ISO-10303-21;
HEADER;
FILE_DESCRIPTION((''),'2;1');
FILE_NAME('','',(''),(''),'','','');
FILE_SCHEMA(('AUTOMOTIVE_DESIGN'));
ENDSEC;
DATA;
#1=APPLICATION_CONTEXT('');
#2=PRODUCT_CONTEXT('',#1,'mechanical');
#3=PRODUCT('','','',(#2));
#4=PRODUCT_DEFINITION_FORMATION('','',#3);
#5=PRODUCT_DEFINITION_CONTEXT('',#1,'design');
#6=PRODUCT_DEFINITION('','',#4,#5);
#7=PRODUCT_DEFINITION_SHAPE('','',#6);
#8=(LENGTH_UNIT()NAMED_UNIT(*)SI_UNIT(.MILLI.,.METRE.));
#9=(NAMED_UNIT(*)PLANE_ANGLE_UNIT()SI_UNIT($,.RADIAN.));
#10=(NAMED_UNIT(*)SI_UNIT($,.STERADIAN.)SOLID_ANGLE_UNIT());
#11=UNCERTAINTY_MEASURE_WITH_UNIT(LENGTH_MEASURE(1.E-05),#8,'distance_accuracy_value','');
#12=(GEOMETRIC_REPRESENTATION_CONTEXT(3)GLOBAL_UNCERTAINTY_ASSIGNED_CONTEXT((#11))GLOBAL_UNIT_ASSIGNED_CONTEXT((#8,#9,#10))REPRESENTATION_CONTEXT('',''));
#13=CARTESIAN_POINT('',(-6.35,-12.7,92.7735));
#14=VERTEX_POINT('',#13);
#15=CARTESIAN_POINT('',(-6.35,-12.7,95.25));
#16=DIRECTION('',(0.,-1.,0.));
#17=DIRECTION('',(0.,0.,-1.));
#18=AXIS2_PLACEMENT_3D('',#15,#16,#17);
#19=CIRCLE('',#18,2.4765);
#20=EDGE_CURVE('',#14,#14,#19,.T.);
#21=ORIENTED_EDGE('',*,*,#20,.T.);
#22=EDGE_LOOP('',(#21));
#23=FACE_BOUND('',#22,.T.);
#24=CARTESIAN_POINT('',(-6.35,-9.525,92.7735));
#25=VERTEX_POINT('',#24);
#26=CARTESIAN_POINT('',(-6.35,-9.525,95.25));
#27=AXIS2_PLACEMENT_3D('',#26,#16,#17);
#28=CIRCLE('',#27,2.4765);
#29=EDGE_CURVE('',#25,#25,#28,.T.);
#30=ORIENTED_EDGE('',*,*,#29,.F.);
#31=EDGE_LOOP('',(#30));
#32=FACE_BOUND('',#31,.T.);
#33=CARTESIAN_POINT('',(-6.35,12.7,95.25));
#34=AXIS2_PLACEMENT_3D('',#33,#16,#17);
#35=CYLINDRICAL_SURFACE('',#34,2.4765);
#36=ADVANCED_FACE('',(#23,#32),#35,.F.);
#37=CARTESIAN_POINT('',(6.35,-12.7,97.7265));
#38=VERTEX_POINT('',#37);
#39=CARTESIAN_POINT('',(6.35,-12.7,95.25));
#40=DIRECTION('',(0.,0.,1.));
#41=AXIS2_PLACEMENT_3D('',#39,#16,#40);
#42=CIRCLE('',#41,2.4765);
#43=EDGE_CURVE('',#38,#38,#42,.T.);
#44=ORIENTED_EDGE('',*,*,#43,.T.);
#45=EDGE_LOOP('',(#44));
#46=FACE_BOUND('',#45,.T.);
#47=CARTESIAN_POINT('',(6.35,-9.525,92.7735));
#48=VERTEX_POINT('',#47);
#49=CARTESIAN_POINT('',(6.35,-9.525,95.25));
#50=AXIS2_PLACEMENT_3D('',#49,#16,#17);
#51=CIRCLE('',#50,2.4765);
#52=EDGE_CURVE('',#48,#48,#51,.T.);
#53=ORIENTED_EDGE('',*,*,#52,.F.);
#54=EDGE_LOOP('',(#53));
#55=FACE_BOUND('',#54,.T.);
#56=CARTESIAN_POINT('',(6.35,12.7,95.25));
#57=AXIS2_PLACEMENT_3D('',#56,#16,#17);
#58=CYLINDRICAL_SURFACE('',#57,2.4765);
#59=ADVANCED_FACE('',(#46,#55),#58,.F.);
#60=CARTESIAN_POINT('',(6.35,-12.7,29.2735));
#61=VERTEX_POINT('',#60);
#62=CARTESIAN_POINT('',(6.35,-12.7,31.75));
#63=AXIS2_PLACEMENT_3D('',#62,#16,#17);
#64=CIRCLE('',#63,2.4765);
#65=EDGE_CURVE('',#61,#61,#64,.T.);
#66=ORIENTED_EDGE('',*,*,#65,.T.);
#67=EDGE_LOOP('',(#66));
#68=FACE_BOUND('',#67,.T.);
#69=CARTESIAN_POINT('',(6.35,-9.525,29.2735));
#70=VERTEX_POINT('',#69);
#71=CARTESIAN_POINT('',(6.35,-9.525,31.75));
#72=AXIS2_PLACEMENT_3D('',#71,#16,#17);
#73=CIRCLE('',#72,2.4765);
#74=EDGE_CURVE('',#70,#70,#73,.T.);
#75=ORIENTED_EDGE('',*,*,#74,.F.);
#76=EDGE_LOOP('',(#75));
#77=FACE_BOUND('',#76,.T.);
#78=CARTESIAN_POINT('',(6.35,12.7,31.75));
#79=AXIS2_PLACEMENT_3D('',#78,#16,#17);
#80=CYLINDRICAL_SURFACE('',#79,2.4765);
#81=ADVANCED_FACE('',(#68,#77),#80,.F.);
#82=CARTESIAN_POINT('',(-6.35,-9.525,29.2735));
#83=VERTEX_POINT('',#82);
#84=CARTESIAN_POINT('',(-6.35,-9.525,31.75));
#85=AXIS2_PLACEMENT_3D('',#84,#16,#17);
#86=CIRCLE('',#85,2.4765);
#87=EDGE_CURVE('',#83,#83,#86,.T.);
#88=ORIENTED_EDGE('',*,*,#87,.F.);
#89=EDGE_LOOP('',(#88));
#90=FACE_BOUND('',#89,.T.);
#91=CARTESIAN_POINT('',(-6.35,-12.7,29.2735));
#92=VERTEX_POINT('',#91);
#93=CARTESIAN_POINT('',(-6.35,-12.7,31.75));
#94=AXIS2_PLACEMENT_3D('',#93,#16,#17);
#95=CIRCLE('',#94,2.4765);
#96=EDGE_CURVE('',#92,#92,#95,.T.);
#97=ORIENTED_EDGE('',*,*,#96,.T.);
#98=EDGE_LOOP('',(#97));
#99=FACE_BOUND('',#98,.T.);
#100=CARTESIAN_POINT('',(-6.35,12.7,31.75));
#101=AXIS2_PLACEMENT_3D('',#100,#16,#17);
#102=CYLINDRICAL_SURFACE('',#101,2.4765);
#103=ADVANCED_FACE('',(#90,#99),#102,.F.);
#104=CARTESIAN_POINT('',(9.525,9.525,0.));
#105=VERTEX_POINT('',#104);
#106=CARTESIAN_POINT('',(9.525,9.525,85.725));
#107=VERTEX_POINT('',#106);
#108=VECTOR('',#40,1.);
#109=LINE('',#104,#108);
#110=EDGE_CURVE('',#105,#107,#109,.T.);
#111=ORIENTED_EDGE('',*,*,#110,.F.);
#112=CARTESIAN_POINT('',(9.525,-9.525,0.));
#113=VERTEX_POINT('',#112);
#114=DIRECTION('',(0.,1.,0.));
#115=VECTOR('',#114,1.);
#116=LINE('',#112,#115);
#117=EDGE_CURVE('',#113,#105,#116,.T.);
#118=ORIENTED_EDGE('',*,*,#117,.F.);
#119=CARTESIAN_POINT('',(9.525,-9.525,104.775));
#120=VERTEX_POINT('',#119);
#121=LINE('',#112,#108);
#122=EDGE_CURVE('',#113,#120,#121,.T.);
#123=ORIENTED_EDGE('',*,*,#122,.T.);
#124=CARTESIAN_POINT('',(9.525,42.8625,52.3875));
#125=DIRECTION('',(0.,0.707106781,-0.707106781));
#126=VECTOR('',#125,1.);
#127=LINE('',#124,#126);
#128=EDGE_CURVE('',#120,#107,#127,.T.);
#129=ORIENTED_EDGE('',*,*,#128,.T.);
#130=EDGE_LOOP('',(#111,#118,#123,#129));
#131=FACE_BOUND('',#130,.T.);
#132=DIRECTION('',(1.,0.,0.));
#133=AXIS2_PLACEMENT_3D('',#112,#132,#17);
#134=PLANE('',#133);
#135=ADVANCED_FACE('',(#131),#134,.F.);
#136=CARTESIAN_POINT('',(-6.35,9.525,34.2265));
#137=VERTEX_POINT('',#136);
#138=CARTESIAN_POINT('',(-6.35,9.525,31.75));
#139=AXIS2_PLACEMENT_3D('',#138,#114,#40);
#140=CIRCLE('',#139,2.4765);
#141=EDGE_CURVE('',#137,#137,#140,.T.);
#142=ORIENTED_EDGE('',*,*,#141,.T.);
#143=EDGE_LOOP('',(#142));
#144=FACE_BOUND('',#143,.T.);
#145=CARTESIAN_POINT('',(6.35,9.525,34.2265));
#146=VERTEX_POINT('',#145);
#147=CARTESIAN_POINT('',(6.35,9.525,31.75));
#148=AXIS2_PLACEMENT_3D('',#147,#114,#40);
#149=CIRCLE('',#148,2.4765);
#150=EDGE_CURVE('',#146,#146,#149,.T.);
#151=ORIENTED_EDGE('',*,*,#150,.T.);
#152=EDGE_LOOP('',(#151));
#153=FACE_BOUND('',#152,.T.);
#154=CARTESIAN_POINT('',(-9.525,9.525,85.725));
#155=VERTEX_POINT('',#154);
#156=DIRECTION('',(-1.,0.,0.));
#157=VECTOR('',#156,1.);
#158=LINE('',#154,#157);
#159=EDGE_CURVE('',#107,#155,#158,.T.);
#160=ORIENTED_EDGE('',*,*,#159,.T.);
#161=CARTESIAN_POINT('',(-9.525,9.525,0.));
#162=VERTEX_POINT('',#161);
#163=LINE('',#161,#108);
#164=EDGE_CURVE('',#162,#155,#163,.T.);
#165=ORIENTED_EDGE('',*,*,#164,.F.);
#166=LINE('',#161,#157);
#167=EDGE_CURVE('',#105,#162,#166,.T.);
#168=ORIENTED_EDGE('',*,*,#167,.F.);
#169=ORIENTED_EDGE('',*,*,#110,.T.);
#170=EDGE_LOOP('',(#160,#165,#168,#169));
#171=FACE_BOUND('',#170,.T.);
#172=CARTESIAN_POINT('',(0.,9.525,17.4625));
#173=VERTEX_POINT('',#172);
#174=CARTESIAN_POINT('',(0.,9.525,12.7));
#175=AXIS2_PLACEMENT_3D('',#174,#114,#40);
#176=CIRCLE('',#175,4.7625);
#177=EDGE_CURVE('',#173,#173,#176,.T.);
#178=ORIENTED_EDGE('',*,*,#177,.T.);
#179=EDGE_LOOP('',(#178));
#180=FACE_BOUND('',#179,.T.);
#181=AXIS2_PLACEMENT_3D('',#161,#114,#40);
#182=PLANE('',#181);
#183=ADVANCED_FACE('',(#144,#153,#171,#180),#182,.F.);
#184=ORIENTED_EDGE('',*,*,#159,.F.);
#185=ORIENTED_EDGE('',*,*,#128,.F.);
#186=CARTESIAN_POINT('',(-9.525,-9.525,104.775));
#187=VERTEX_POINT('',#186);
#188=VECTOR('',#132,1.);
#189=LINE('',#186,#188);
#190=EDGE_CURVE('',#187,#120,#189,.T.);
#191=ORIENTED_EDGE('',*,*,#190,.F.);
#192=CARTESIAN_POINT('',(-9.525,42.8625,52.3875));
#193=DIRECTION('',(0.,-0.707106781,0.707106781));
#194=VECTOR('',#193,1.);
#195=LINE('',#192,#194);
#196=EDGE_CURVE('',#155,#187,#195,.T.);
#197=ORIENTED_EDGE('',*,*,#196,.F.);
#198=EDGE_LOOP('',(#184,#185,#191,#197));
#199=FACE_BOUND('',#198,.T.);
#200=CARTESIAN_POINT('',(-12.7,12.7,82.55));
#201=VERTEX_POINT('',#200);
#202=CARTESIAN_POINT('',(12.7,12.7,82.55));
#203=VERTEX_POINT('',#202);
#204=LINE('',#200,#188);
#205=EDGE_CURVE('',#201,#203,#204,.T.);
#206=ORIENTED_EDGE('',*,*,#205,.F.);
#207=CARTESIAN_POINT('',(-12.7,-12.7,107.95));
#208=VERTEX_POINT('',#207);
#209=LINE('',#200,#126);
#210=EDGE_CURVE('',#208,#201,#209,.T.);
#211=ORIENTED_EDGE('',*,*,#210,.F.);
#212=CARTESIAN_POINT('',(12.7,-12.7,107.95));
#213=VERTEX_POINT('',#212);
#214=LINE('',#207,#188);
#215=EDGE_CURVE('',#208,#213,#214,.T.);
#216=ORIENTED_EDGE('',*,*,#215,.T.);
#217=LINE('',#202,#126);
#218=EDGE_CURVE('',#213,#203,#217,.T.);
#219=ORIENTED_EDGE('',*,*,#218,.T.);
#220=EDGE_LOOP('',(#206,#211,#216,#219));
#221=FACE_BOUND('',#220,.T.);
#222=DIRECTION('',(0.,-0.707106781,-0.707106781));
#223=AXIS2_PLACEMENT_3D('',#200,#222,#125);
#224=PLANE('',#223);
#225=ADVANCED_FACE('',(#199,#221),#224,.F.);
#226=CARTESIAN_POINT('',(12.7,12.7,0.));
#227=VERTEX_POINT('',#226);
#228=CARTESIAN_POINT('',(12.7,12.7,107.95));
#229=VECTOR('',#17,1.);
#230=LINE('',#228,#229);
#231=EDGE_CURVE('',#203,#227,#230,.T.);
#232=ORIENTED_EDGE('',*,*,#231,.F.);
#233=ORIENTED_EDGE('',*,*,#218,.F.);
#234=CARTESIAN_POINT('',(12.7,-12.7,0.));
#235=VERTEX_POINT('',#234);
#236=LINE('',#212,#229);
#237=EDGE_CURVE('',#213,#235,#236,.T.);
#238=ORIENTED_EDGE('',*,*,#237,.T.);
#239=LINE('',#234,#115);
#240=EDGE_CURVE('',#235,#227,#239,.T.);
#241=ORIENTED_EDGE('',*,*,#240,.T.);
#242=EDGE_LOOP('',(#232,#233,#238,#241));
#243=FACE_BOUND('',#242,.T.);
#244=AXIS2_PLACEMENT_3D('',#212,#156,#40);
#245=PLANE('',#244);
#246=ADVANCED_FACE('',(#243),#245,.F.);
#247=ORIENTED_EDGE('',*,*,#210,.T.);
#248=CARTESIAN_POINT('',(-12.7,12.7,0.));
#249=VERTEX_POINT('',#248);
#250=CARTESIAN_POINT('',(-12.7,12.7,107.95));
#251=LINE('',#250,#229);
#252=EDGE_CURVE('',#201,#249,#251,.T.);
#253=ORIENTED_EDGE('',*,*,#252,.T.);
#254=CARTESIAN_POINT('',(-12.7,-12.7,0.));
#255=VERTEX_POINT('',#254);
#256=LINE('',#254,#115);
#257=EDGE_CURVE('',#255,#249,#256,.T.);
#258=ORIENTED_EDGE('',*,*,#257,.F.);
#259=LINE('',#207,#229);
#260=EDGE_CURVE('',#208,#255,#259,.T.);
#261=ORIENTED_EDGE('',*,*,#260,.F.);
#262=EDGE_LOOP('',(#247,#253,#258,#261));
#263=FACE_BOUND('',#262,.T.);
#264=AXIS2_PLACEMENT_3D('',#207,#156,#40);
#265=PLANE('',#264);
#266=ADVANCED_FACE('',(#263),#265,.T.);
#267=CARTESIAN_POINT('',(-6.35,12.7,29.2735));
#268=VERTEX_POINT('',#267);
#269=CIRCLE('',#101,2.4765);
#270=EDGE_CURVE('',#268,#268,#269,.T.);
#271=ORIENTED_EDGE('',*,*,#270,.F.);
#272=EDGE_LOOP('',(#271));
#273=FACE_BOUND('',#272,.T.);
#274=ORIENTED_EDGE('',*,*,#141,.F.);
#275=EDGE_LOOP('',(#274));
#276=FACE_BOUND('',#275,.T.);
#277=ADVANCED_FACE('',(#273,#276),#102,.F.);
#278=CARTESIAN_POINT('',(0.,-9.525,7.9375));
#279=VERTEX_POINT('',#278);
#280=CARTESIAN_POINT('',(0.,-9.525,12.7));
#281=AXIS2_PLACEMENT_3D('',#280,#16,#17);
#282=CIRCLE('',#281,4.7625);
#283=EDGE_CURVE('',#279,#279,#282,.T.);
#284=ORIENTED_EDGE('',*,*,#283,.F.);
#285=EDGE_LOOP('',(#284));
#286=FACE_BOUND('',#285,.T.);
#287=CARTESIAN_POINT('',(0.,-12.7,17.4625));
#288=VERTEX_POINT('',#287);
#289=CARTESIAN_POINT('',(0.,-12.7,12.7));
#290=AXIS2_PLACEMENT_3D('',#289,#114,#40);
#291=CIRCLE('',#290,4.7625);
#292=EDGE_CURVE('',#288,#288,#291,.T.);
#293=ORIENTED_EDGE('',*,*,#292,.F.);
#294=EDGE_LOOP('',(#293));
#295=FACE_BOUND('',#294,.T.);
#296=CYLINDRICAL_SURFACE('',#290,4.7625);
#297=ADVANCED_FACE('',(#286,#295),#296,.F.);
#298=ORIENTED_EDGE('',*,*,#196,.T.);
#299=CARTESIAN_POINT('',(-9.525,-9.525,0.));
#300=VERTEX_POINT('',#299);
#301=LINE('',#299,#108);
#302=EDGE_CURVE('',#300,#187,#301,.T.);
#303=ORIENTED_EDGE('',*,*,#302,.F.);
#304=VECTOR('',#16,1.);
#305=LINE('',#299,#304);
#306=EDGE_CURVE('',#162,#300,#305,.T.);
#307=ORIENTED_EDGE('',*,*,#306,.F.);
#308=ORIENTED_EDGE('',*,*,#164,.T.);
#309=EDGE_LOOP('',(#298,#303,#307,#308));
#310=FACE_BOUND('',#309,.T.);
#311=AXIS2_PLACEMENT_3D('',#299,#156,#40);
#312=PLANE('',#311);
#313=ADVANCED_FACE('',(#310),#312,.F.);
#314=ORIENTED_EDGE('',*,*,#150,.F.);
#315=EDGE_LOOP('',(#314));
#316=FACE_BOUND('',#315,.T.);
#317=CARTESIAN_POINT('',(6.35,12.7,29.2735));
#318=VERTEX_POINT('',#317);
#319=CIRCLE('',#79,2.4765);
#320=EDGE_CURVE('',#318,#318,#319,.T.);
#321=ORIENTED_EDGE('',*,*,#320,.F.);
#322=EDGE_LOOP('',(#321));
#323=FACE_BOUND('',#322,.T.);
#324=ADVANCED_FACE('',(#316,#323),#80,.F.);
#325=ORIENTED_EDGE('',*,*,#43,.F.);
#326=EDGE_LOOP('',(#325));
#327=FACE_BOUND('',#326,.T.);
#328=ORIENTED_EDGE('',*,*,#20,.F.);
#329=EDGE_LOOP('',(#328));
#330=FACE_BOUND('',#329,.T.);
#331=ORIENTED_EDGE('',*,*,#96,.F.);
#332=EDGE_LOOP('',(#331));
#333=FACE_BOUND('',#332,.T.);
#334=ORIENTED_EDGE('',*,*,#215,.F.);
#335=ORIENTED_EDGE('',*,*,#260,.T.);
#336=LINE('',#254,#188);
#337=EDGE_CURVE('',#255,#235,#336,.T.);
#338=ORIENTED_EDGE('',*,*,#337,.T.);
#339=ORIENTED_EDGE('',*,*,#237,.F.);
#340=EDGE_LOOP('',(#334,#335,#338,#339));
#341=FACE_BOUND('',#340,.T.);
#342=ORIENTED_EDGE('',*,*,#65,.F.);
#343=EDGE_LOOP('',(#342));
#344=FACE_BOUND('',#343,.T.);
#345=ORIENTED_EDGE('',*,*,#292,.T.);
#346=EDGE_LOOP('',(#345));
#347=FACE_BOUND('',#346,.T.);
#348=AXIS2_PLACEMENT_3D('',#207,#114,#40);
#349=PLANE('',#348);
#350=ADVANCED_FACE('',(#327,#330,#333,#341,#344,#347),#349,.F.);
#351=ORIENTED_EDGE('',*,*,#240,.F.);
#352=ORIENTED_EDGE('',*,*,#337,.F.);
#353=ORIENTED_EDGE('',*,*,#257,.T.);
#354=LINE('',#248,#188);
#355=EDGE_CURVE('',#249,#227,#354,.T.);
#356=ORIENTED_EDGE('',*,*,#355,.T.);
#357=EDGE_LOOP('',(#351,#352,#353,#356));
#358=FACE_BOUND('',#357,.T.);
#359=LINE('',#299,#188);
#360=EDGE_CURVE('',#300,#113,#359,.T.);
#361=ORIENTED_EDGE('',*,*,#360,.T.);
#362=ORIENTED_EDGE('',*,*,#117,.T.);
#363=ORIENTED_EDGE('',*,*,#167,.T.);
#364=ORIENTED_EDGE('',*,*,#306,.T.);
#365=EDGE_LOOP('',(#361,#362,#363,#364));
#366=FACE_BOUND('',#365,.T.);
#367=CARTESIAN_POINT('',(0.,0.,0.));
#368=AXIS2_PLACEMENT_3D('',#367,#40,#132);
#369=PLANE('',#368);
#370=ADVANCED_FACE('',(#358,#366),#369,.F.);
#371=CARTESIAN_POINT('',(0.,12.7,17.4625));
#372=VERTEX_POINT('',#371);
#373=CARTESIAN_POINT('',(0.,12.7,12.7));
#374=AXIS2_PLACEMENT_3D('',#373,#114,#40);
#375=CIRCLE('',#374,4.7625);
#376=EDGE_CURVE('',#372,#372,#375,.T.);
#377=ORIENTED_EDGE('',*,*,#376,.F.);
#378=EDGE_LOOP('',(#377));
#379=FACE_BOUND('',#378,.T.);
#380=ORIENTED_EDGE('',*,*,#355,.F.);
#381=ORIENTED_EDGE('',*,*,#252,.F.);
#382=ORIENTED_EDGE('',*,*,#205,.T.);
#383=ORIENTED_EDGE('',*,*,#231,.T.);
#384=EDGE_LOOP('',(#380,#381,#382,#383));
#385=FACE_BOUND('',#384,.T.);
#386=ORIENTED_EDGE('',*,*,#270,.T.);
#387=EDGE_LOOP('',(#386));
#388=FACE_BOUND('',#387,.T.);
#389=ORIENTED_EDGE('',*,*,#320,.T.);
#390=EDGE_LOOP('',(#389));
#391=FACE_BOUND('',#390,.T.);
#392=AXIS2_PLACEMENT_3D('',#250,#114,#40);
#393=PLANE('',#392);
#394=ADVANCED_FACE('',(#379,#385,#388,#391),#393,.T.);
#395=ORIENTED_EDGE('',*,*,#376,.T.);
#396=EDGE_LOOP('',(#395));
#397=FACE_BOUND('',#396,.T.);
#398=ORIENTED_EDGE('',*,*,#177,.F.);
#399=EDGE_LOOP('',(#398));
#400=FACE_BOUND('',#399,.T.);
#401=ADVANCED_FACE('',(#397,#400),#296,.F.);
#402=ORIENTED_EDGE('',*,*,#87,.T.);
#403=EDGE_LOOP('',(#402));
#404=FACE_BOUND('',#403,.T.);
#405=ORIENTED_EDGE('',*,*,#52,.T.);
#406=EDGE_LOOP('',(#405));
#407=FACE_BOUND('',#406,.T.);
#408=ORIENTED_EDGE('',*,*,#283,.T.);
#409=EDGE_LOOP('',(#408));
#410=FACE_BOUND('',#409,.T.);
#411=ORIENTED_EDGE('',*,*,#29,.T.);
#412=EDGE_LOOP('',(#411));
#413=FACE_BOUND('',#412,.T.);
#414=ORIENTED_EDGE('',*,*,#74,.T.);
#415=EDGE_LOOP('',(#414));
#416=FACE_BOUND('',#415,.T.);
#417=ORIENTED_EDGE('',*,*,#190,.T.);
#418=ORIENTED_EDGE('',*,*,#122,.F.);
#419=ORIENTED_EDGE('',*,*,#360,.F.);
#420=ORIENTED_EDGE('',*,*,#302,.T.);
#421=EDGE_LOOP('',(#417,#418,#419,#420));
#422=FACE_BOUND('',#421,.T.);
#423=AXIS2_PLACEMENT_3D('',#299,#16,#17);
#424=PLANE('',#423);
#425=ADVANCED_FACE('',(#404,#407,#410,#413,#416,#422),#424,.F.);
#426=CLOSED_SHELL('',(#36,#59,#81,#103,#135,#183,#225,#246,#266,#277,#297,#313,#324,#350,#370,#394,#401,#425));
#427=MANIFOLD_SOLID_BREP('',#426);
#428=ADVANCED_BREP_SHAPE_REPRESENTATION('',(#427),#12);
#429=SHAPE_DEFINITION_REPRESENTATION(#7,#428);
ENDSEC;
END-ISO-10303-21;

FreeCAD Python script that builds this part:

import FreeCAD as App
import Part
import Sketcher

V = App.Vector
Q = App.Units.Quantity


def add_polygon(sketch, points):
    """Adds a closed chain of lines whose ends are joined by coincident constraints."""
    first, n = sketch.GeometryCount, len(points)
    for a, b in zip(points, points[1:] + points[:1]):
        sketch.addGeometry(Part.LineSegment(App.Vector(*a, 0), App.Vector(*b, 0)), False)
    for i in range(n):
        sketch.addConstraint(Sketcher.Constraint("Coincident", first + i, 2, first + (i + 1) % n, 1))

doc = App.newDocument("Part")
params = doc.addObject("Spreadsheet::Sheet", "Params")
for row, (alias, value) in enumerate([
    ("sketch1_width", "1 in"),
    ("pad1_length", "4.25 in"),
    ("sketch2_width", "0.75 in"),
    ("sketch3_width", "1 in"),
    ("sketch4_diameter", "0.195 in"),
    ("sketch5_diameter", "0.375 in"),
    ("sketch6_diameter", "0.195 in"),
], start=1):
    params.set(f"A{row}", alias)
    params.set(f"B{row}", "=" + value)
    params.setAlias(f"B{row}", alias)

body = doc.addObject("PartDesign::Body", "Body")

# Sketch on XY plane
sketch1 = body.newObject("Sketcher::SketchObject", "Sketch")
sketch1.AttachmentSupport = (doc.getObject("XY_Plane"), [""])
sketch1.MapMode = "FlatFace"
add_polygon(sketch1, [(-13, 13), (-13, -13), (13, -13), (13, 13)])  # lines 0-3
sketch1.addConstraint([
    Sketcher.Constraint("Vertical", 0),
    Sketcher.Constraint("Horizontal", 1),
    Sketcher.Constraint("Vertical", 2),
    Sketcher.Constraint("Horizontal", 3),
    Sketcher.Constraint("Symmetric", 0, 2, 2, 2, -1, 1),
    Sketcher.Constraint("Equal", 3, 0),
    Sketcher.Constraint("DistanceX", 1, 1, 1, 2, Q("1 in")),
])
sketch1.setExpression("Constraints[10]", "Params.sketch1_width")
pad1 = body.newObject("PartDesign::Pad", "Pad")
pad1.Profile = sketch1
pad1.setExpression("Length", "Params.pad1_length")

# Sketch on XY plane
sketch2 = body.newObject("Sketcher::SketchObject", "Sketch001")
sketch2.AttachmentSupport = (doc.getObject("XY_Plane"), [""])
sketch2.MapMode = "FlatFace"
sketch2.AttachmentOffset = App.Placement(V(0, 0, 4.25 * 25.4), App.Rotation())
add_polygon(sketch2, [(-10, 10), (-10, -10), (10, -10), (10, 10)])  # lines 0-3
sketch2.addConstraint([
    Sketcher.Constraint("Vertical", 0),
    Sketcher.Constraint("Horizontal", 1),
    Sketcher.Constraint("Vertical", 2),
    Sketcher.Constraint("Horizontal", 3),
    Sketcher.Constraint("Symmetric", 0, 2, 2, 2, -1, 1),
    Sketcher.Constraint("Equal", 3, 0),
    Sketcher.Constraint("DistanceX", 1, 1, 1, 2, Q("0.75 in")),
])
sketch2.setExpression("Constraints[10]", "Params.sketch2_width")
pocket1 = body.newObject("PartDesign::Pocket", "Pocket")
pocket1.Profile = sketch2
pocket1.Type = "ThroughAll"

# Sketch on YZ plane
sketch3 = body.newObject("Sketcher::SketchObject", "Sketch002")
sketch3.AttachmentSupport = (doc.getObject("YZ_Plane"), [""])
sketch3.MapMode = "FlatFace"
sketch3.AttachmentOffset = App.Placement(V(0, 0, 0.5 * 25.4), App.Rotation())
add_polygon(sketch3, [(13, 83), (13, 108), (-13, 108)])  # lines 0-2
sketch3.addConstraint([
    Sketcher.Constraint("Vertical", 0),
    Sketcher.Constraint("Horizontal", 1),
    Sketcher.Constraint("Equal", 1, 0),
    Sketcher.Constraint("DistanceX", 1, 2, 1, 1, Q("1 in")),
    Sketcher.Constraint("DistanceX", -1, 1, 0, 2, Q("0.5 in")),
    Sketcher.Constraint("DistanceY", -1, 1, 0, 2, Q("4.25 in")),
])
sketch3.setExpression("Constraints[6]", "Params.sketch3_width")
pocket2 = body.newObject("PartDesign::Pocket", "Pocket001")
pocket2.Profile = sketch3
pocket2.Type = "ThroughAll"

# Sketch on XZ plane
sketch4 = body.newObject("Sketcher::SketchObject", "Sketch003")
sketch4.AttachmentSupport = (doc.getObject("XZ_Plane"), [""])
sketch4.MapMode = "FlatFace"
sketch4.AttachmentOffset = App.Placement(V(0, 0, 0.5 * 25.4), App.Rotation())
sketch4.addGeometry([
    Part.Circle(V(-6.3, 95.2, 0), V(0, 0, 1), 2.5),
    Part.Circle(V(6.3, 95.2, 0), V(0, 0, 1), 2.5),
], False)
sketch4.addConstraint([
    Sketcher.Constraint("Equal", 0, 1),
    Sketcher.Constraint("Symmetric", 0, 3, 1, 3, -2),
    Sketcher.Constraint("Diameter", 0, Q("0.195 in")),
    Sketcher.Constraint("DistanceX", 0, 3, 1, 3, Q("0.5 in")),
    Sketcher.Constraint("DistanceY", -1, 1, 0, 3, Q("3.75 in")),
])
sketch4.setExpression("Constraints[2]", "Params.sketch4_diameter")
pocket3 = body.newObject("PartDesign::Pocket", "Pocket002")
pocket3.Profile = sketch4
pocket3.Type = "ThroughAll"

# Sketch on XZ plane
sketch5 = body.newObject("Sketcher::SketchObject", "Sketch004")
sketch5.AttachmentSupport = (doc.getObject("XZ_Plane"), [""])
sketch5.MapMode = "FlatFace"
sketch5.AttachmentOffset = App.Placement(V(0, 0, -0.5 * 25.4), App.Rotation())
sketch5.addGeometry(Part.Circle(V(0, 12.7, 0), V(0, 0, 1), 4.8), False)
sketch5.addConstraint([
    Sketcher.Constraint("PointOnObject", 0, 3, -2),
    Sketcher.Constraint("Diameter", 0, Q("0.375 in")),
    Sketcher.Constraint("DistanceY", -1, 1, 0, 3, Q("0.5 in")),
])
sketch5.setExpression("Constraints[1]", "Params.sketch5_diameter")
pocket4 = body.newObject("PartDesign::Pocket", "Pocket003")
pocket4.Profile = sketch5
pocket4.Type = "ThroughAll"
pocket4.Reversed = True

# Sketch on XZ plane
sketch6 = body.newObject("Sketcher::SketchObject", "Sketch005")
sketch6.AttachmentSupport = (doc.getObject("XZ_Plane"), [""])
sketch6.MapMode = "FlatFace"
sketch6.AttachmentOffset = App.Placement(V(0, 0, 0.5 * 25.4), App.Rotation())
sketch6.addGeometry([
    Part.Circle(V(6.3, 31.8, 0), V(0, 0, 1), 2.5),
    Part.Circle(V(-6.3, 31.8, 0), V(0, 0, 1), 2.5),
], False)
sketch6.addConstraint([
    Sketcher.Constraint("Equal", 0, 1),
    Sketcher.Constraint("Symmetric", 0, 3, 1, 3, -2),
    Sketcher.Constraint("Diameter", 0, Q("0.195 in")),
    Sketcher.Constraint("DistanceX", 1, 3, 0, 3, Q("0.5 in")),
    Sketcher.Constraint("DistanceY", -1, 1, 0, 3, Q("1.25 in")),
])
sketch6.setExpression("Constraints[2]", "Params.sketch6_diameter")
pocket5 = body.newObject("PartDesign::Pocket", "Pocket004")
pocket5.Profile = sketch6
pocket5.Type = "ThroughAll"

doc.recompute()
